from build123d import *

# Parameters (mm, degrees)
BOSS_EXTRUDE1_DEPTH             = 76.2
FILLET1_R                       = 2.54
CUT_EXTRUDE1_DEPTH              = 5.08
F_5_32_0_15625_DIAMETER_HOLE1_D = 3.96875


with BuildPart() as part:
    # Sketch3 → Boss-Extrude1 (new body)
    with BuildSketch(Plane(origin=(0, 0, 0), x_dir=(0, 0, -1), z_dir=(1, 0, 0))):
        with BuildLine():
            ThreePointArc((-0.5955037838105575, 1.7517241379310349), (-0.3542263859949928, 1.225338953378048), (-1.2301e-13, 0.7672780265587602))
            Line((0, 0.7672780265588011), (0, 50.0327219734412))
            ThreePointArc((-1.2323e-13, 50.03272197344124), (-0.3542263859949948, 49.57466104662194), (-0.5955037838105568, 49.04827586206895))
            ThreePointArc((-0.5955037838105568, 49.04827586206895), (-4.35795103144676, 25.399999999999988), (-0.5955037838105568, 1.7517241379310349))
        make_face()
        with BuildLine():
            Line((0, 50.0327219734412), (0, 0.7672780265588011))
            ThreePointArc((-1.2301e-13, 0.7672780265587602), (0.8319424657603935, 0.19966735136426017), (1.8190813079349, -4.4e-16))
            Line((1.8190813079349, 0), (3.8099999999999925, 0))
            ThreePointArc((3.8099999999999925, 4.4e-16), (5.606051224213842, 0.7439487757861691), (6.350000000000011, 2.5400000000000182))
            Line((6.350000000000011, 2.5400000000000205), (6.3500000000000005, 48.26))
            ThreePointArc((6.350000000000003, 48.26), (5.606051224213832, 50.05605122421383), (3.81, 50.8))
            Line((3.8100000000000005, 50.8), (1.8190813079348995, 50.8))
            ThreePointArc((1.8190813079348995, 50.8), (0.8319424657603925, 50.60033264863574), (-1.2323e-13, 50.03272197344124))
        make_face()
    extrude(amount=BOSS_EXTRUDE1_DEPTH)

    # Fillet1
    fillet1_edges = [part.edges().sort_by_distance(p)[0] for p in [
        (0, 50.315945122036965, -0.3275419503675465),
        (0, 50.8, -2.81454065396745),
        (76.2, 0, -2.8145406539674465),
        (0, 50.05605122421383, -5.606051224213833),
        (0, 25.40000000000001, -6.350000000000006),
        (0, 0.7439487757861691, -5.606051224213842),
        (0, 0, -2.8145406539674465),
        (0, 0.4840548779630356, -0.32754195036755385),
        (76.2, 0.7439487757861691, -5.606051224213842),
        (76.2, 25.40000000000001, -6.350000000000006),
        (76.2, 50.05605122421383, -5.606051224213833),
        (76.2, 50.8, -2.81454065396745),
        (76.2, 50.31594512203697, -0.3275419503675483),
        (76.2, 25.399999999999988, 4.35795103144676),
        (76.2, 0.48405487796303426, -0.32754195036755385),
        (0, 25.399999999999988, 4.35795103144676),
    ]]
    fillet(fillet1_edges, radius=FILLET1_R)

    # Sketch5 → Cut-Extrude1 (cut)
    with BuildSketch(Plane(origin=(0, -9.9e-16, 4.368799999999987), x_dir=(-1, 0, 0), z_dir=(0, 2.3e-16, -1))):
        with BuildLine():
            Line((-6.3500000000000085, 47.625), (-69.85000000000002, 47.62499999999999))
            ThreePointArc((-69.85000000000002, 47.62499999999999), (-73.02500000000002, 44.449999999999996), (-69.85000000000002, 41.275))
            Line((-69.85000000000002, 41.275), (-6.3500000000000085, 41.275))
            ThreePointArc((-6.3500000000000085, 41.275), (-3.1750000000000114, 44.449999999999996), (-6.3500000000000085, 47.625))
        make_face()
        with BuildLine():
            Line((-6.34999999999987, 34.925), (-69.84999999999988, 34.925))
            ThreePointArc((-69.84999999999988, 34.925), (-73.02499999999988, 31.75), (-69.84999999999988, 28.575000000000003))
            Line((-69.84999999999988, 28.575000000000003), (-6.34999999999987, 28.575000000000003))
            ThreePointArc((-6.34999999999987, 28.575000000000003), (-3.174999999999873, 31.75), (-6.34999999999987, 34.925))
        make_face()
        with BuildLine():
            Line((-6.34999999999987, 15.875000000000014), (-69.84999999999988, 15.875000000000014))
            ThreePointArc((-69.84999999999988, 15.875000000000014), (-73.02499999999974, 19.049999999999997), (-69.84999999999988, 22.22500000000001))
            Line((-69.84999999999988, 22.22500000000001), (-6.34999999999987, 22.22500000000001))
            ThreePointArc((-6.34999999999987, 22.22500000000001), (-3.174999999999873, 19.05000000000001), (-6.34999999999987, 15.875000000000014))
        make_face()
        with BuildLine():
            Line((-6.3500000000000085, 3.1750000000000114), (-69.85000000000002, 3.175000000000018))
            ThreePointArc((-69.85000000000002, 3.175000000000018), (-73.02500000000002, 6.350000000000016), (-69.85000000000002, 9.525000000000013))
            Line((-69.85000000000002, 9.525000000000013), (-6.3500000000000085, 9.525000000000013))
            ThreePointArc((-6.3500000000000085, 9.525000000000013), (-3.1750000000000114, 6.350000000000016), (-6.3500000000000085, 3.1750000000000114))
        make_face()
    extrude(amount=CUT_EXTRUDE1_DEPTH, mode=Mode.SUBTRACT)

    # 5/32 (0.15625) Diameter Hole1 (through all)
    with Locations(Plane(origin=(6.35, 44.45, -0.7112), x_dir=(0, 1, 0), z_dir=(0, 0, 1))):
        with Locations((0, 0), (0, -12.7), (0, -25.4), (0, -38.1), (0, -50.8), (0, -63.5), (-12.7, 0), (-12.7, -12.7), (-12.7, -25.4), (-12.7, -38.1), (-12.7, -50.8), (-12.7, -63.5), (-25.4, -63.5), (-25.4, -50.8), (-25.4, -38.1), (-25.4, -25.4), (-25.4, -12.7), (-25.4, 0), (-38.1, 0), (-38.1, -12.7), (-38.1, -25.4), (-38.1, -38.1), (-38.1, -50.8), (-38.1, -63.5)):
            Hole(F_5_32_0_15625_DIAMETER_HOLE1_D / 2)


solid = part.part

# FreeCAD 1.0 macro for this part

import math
import FreeCAD as App
import Part
import Sketcher

V = App.Vector
Q = App.Units.Quantity


def edges_at(feature, points):
    """Names of the edges that pass closest to the given points."""
    edges = feature.Shape.Edges
    near = lambda p: min(range(len(edges)), key=lambda i: edges[i].distToShape(Part.Vertex(*p))[0])
    return sorted({f"Edge{near(p) + 1}" for p in points})

doc = App.newDocument("Part")
body = doc.addObject("PartDesign::Body", "Body")

# Sketch on YZ plane
sketch1 = doc.addObject("Sketcher::SketchObject", "Sketch")
body.addObject(sketch1)
sketch1.AttachmentSupport = (doc.YZ_Plane, [""])
sketch1.MapMode = "FlatFace"
sketch1.addGeometry(Part.ArcOfCircle(Part.Circle(V(2.5, -1.8, 0), V(0, 0, 1), 2.5), math.radians(108), math.radians(180)), False)
sketch1.addGeometry(Part.LineSegment(V(0, -1.8, 0), V(0, -3.8, 0)), False)
sketch1.addGeometry(Part.ArcOfCircle(Part.Circle(V(2.5, -3.8, 0), V(0, 0, 1), 2.5), math.radians(180), math.radians(270)), False)
sketch1.addGeometry(Part.LineSegment(V(2.5, -6.3, 0), V(48.3, -6.3, 0)), False)
sketch1.addGeometry(Part.ArcOfCircle(Part.Circle(V(48.3, -3.8, 0), V(0, 0, 1), 2.5), math.radians(-90), math.radians(0)), False)
sketch1.addGeometry(Part.LineSegment(V(50.8, -3.8, 0), V(50.8, -1.8, 0)), False)
sketch1.addGeometry(Part.ArcOfCircle(Part.Circle(V(48.3, -1.8, 0), V(0, 0, 1), 2.5), math.radians(0), math.radians(72)), False)
sketch1.addGeometry(Part.ArcOfCircle(Part.Circle(V(25.4, -71.8, 0), V(0, 0, 1), 76.2), math.radians(72), math.radians(108)), False)
sketch1.addConstraint(Sketcher.Constraint("Tangent", 0, 2, 1, 1))
sketch1.addConstraint(Sketcher.Constraint("Tangent", 1, 2, 2, 1))
sketch1.addConstraint(Sketcher.Constraint("Tangent", 2, 2, 3, 1))
sketch1.addConstraint(Sketcher.Constraint("Tangent", 3, 2, 4, 1))
sketch1.addConstraint(Sketcher.Constraint("Tangent", 4, 2, 5, 1))
sketch1.addConstraint(Sketcher.Constraint("Tangent", 5, 2, 6, 1))
sketch1.addConstraint(Sketcher.Constraint("Tangent", 6, 2, 7, 1))
sketch1.addConstraint(Sketcher.Constraint("Tangent", 7, 2, 0, 1))
sketch1.addConstraint(Sketcher.Constraint("Vertical", 1))
sketch1.addConstraint(Sketcher.Constraint("Horizontal", 3))
sketch1.addConstraint(Sketcher.Constraint("Vertical", 5))
sketch1.addConstraint(Sketcher.Constraint("Equal", 0, 2))
sketch1.addConstraint(Sketcher.Constraint("Equal", 2, 4))
sketch1.addConstraint(Sketcher.Constraint("Equal", 4, 6))
sketch1.addConstraint(Sketcher.Constraint("PointOnObject", 0, 2, -2))
sketch1.addConstraint(Sketcher.Constraint("Horizontal", 0, 3, 6, 3))
sketch1.addConstraint(Sketcher.Constraint("Radius", 7, Q("3 in")))
sketch1.addConstraint(Sketcher.Constraint("Radius", 0, Q("0.1 in")))
sketch1.addConstraint(Sketcher.Constraint("DistanceX", 3, 1, 3, 2, Q("1.8 in")))
sketch1.addConstraint(Sketcher.Constraint("DistanceY", 2, 3, -1, 1, Q("0.15 in")))
sketch1.addConstraint(Sketcher.Constraint("DistanceY", 1, 2, 1, 1, 1.990919))
pad1 = doc.addObject("PartDesign::Pad", "Pad")
body.addObject(pad1)
pad1.Profile = sketch1
pad1.Length = Q("3 in")
doc.recompute()

fillet = doc.addObject("PartDesign::Fillet", "Fillet")
body.addObject(fillet)
fillet.Base = (pad1, edges_at(pad1, [
    (0, 50.316, -0.328),
    (0, 50.8, -2.815),
    (76.2, 0, -2.815),
    (0, 50.056, -5.606),
    (0, 25.4, -6.35),
    (0, 0.744, -5.606),
    (0, 0, -2.815),
    (0, 0.484, -0.328),
    (76.2, 0.744, -5.606),
    (76.2, 25.4, -6.35),
    (76.2, 50.056, -5.606),
    (76.2, 50.8, -2.815),
    (76.2, 50.316, -0.328),
    (76.2, 25.4, 4.358),
    (76.2, 0.484, -0.328),
    (0, 25.4, 4.358),
]))
fillet.Radius = Q("0.1 in")

# Sketch on XY plane
sketch2 = doc.addObject("Sketcher::SketchObject", "Sketch001")
body.addObject(sketch2)
sketch2.AttachmentSupport = (doc.XY_Plane, [""])
sketch2.MapMode = "FlatFace"
sketch2.AttachmentOffset = App.Placement(V(0, 0, 0.172 * 25.4), App.Rotation())
sketch2.addGeometry(Part.LineSegment(V(6.3, 47.6, 0), V(69.8, 47.6, 0)), False)
sketch2.addGeometry(Part.ArcOfCircle(Part.Circle(V(69.8, 44.5, 0), V(0, 0, 1), 3.2), math.radians(-90), math.radians(90)), False)
sketch2.addGeometry(Part.LineSegment(V(69.8, 41.3, 0), V(6.3, 41.3, 0)), False)
sketch2.addGeometry(Part.ArcOfCircle(Part.Circle(V(6.3, 44.5, 0), V(0, 0, 1), 3.2), math.radians(90), math.radians(270)), False)
sketch2.addGeometry(Part.LineSegment(V(6.3, 34.9, 0), V(69.8, 34.9, 0)), False)
sketch2.addGeometry(Part.ArcOfCircle(Part.Circle(V(69.8, 31.8, 0), V(0, 0, 1), 3.2), math.radians(-90), math.radians(90)), False)
sketch2.addGeometry(Part.LineSegment(V(69.8, 28.6, 0), V(6.3, 28.6, 0)), False)
sketch2.addGeometry(Part.ArcOfCircle(Part.Circle(V(6.3, 31.8, 0), V(0, 0, 1), 3.2), math.radians(90), math.radians(270)), False)
sketch2.addGeometry(Part.LineSegment(V(69.8, 15.9, 0), V(6.3, 15.9, 0)), False)
sketch2.addGeometry(Part.ArcOfCircle(Part.Circle(V(6.3, 19.1, 0), V(0, 0, 1), 3.2), math.radians(90), math.radians(270)), False)
sketch2.addGeometry(Part.LineSegment(V(6.3, 22.2, 0), V(69.8, 22.2, 0)), False)
sketch2.addGeometry(Part.ArcOfCircle(Part.Circle(V(69.8, 19.1, 0), V(0, 0, 1), 3.2), math.radians(-90), math.radians(90)), False)
sketch2.addGeometry(Part.LineSegment(V(69.8, 3.2, 0), V(6.3, 3.2, 0)), False)
sketch2.addGeometry(Part.ArcOfCircle(Part.Circle(V(6.3, 6.3, 0), V(0, 0, 1), 3.2), math.radians(90), math.radians(270)), False)
sketch2.addGeometry(Part.LineSegment(V(6.3, 9.5, 0), V(69.8, 9.5, 0)), False)
sketch2.addGeometry(Part.ArcOfCircle(Part.Circle(V(69.8, 6.3, 0), V(0, 0, 1), 3.2), math.radians(-90), math.radians(90)), False)
sketch2.addConstraint(Sketcher.Constraint("Tangent", 0, 2, 1, 2))
sketch2.addConstraint(Sketcher.Constraint("Tangent", 1, 1, 2, 1))
sketch2.addConstraint(Sketcher.Constraint("Tangent", 2, 2, 3, 2))
sketch2.addConstraint(Sketcher.Constraint("Tangent", 3, 1, 0, 1))
sketch2.addConstraint(Sketcher.Constraint("Tangent", 4, 2, 5, 2))
sketch2.addConstraint(Sketcher.Constraint("Tangent", 5, 1, 6, 1))
sketch2.addConstraint(Sketcher.Constraint("Tangent", 6, 2, 7, 2))
sketch2.addConstraint(Sketcher.Constraint("Tangent", 7, 1, 4, 1))
sketch2.addConstraint(Sketcher.Constraint("Tangent", 8, 2, 9, 2))
sketch2.addConstraint(Sketcher.Constraint("Tangent", 9, 1, 10, 1))
sketch2.addConstraint(Sketcher.Constraint("Tangent", 10, 2, 11, 2))
sketch2.addConstraint(Sketcher.Constraint("Tangent", 11, 1, 8, 1))
sketch2.addConstraint(Sketcher.Constraint("Tangent", 12, 2, 13, 2))
sketch2.addConstraint(Sketcher.Constraint("Tangent", 13, 1, 14, 1))
sketch2.addConstraint(Sketcher.Constraint("Tangent", 14, 2, 15, 2))
sketch2.addConstraint(Sketcher.Constraint("Tangent", 15, 1, 12, 1))
sketch2.addConstraint(Sketcher.Constraint("Horizontal", 0))
sketch2.addConstraint(Sketcher.Constraint("Horizontal", 2))
sketch2.addConstraint(Sketcher.Constraint("Horizontal", 4))
sketch2.addConstraint(Sketcher.Constraint("Horizontal", 6))
sketch2.addConstraint(Sketcher.Constraint("Horizontal", 8))
sketch2.addConstraint(Sketcher.Constraint("Horizontal", 10))
sketch2.addConstraint(Sketcher.Constraint("Horizontal", 12))
sketch2.addConstraint(Sketcher.Constraint("Horizontal", 14))
sketch2.addConstraint(Sketcher.Constraint("Equal", 3, 5))
sketch2.addConstraint(Sketcher.Constraint("Equal", 7, 9))
sketch2.addConstraint(Sketcher.Constraint("Equal", 11, 13))
sketch2.addConstraint(Sketcher.Constraint("Vertical", 1, 3, 5, 3))
sketch2.addConstraint(Sketcher.Constraint("Vertical", 3, 3, 7, 3))
sketch2.addConstraint(Sketcher.Constraint("Vertical", 7, 3, 9, 3))
sketch2.addConstraint(Sketcher.Constraint("Vertical", 5, 3, 11, 3))
sketch2.addConstraint(Sketcher.Constraint("Vertical", 9, 3, 13, 3))
sketch2.addConstraint(Sketcher.Constraint("Vertical", 11, 3, 15, 3))
sketch2.addConstraint(Sketcher.Constraint("DistanceX", 0, 1, 0, 2, Q("2.5 in")))
sketch2.addConstraint(Sketcher.Constraint("Radius", 1, Q("0.125 in")))
sketch2.addConstraint(Sketcher.Constraint("DistanceY", 9, 3, 3, 3, Q("1 in")))
sketch2.addConstraint(Sketcher.Constraint("DistanceY", 13, 3, 7, 3, Q("1 in")))
sketch2.addConstraint(Sketcher.Constraint("DistanceY", 5, 3, 1, 3, Q("0.5 in")))
sketch2.addConstraint(Sketcher.Constraint("DistanceX", -1, 1, 1, 3, Q("2.75 in")))
sketch2.addConstraint(Sketcher.Constraint("DistanceY", -1, 1, 1, 3, Q("1.75 in")))
pocket1 = doc.addObject("PartDesign::Pocket", "Pocket")
body.addObject(pocket1)
pocket1.Profile = sketch2
pocket1.Length = Q("0.2 in")

# Sketch on XY plane
sketch3 = doc.addObject("Sketcher::SketchObject", "Sketch002")
body.addObject(sketch3)
sketch3.AttachmentSupport = (doc.XY_Plane, [""])
sketch3.MapMode = "FlatFace"
sketch3.AttachmentOffset = App.Placement(V(0, 0, -0.028 * 25.4), App.Rotation())
sketch3.addGeometry(Part.Circle(V(6.3, 44.5, 0), V(0, 0, 1), 2), False)
sketch3.addGeometry(Part.Circle(V(19.1, 44.5, 0), V(0, 0, 1), 2), False)
sketch3.addGeometry(Part.Circle(V(31.8, 44.5, 0), V(0, 0, 1), 2), False)
sketch3.addGeometry(Part.Circle(V(44.5, 44.5, 0), V(0, 0, 1), 2), False)
sketch3.addGeometry(Part.Circle(V(57.1, 44.5, 0), V(0, 0, 1), 2), False)
sketch3.addGeometry(Part.Circle(V(69.8, 44.5, 0), V(0, 0, 1), 2), False)
sketch3.addGeometry(Part.Circle(V(6.3, 31.8, 0), V(0, 0, 1), 2), False)
sketch3.addGeometry(Part.Circle(V(19.1, 31.8, 0), V(0, 0, 1), 2), False)
sketch3.addGeometry(Part.Circle(V(31.8, 31.8, 0), V(0, 0, 1), 2), False)
sketch3.addGeometry(Part.Circle(V(44.5, 31.8, 0), V(0, 0, 1), 2), False)
sketch3.addGeometry(Part.Circle(V(57.1, 31.8, 0), V(0, 0, 1), 2), False)
sketch3.addGeometry(Part.Circle(V(69.8, 31.8, 0), V(0, 0, 1), 2), False)
sketch3.addGeometry(Part.Circle(V(69.8, 19.1, 0), V(0, 0, 1), 2), False)
sketch3.addGeometry(Part.Circle(V(57.1, 19.1, 0), V(0, 0, 1), 2), False)
sketch3.addGeometry(Part.Circle(V(44.5, 19.1, 0), V(0, 0, 1), 2), False)
sketch3.addGeometry(Part.Circle(V(31.8, 19.1, 0), V(0, 0, 1), 2), False)
sketch3.addGeometry(Part.Circle(V(19.1, 19.1, 0), V(0, 0, 1), 2), False)
sketch3.addGeometry(Part.Circle(V(6.3, 19.1, 0), V(0, 0, 1), 2), False)
sketch3.addGeometry(Part.Circle(V(6.3, 6.3, 0), V(0, 0, 1), 2), False)
sketch3.addGeometry(Part.Circle(V(19.1, 6.3, 0), V(0, 0, 1), 2), False)
sketch3.addGeometry(Part.Circle(V(31.8, 6.3, 0), V(0, 0, 1), 2), False)
sketch3.addGeometry(Part.Circle(V(44.5, 6.3, 0), V(0, 0, 1), 2), False)
sketch3.addGeometry(Part.Circle(V(57.1, 6.3, 0), V(0, 0, 1), 2), False)
sketch3.addGeometry(Part.Circle(V(69.8, 6.3, 0), V(0, 0, 1), 2), False)
sketch3.addConstraint(Sketcher.Constraint("Equal", 0, 1))
sketch3.addConstraint(Sketcher.Constraint("Equal", 1, 2))
sketch3.addConstraint(Sketcher.Constraint("Equal", 2, 3))
sketch3.addConstraint(Sketcher.Constraint("Equal", 3, 4))
sketch3.addConstraint(Sketcher.Constraint("Equal", 4, 5))
sketch3.addConstraint(Sketcher.Constraint("Equal", 5, 6))
sketch3.addConstraint(Sketcher.Constraint("Equal", 6, 7))
sketch3.addConstraint(Sketcher.Constraint("Equal", 7, 8))
sketch3.addConstraint(Sketcher.Constraint("Equal", 8, 9))
sketch3.addConstraint(Sketcher.Constraint("Equal", 9, 10))
sketch3.addConstraint(Sketcher.Constraint("Equal", 10, 11))
sketch3.addConstraint(Sketcher.Constraint("Equal", 11, 12))
sketch3.addConstraint(Sketcher.Constraint("Equal", 12, 13))
sketch3.addConstraint(Sketcher.Constraint("Equal", 13, 14))
sketch3.addConstraint(Sketcher.Constraint("Equal", 14, 15))
sketch3.addConstraint(Sketcher.Constraint("Equal", 15, 16))
sketch3.addConstraint(Sketcher.Constraint("Equal", 16, 17))
sketch3.addConstraint(Sketcher.Constraint("Equal", 17, 18))
sketch3.addConstraint(Sketcher.Constraint("Equal", 18, 19))
sketch3.addConstraint(Sketcher.Constraint("Equal", 19, 20))
sketch3.addConstraint(Sketcher.Constraint("Equal", 20, 21))
sketch3.addConstraint(Sketcher.Constraint("Equal", 21, 22))
sketch3.addConstraint(Sketcher.Constraint("Equal", 22, 23))
sketch3.addConstraint(Sketcher.Constraint("Horizontal", 0, 3, 1, 3))
sketch3.addConstraint(Sketcher.Constraint("Horizontal", 1, 3, 2, 3))
sketch3.addConstraint(Sketcher.Constraint("Horizontal", 2, 3, 3, 3))
sketch3.addConstraint(Sketcher.Constraint("Horizontal", 3, 3, 4, 3))
sketch3.addConstraint(Sketcher.Constraint("Horizontal", 4, 3, 5, 3))
sketch3.addConstraint(Sketcher.Constraint("Horizontal", 6, 3, 7, 3))
sketch3.addConstraint(Sketcher.Constraint("Horizontal", 7, 3, 8, 3))
sketch3.addConstraint(Sketcher.Constraint("Horizontal", 8, 3, 9, 3))
sketch3.addConstraint(Sketcher.Constraint("Horizontal", 9, 3, 10, 3))
sketch3.addConstraint(Sketcher.Constraint("Horizontal", 10, 3, 11, 3))
sketch3.addConstraint(Sketcher.Constraint("Horizontal", 12, 3, 13, 3))
sketch3.addConstraint(Sketcher.Constraint("Horizontal", 13, 3, 14, 3))
sketch3.addConstraint(Sketcher.Constraint("Horizontal", 14, 3, 15, 3))
sketch3.addConstraint(Sketcher.Constraint("Horizontal", 15, 3, 16, 3))
sketch3.addConstraint(Sketcher.Constraint("Horizontal", 16, 3, 17, 3))
sketch3.addConstraint(Sketcher.Constraint("Horizontal", 18, 3, 19, 3))
sketch3.addConstraint(Sketcher.Constraint("Horizontal", 19, 3, 20, 3))
sketch3.addConstraint(Sketcher.Constraint("Horizontal", 20, 3, 21, 3))
sketch3.addConstraint(Sketcher.Constraint("Horizontal", 21, 3, 22, 3))
sketch3.addConstraint(Sketcher.Constraint("Horizontal", 22, 3, 23, 3))
sketch3.addConstraint(Sketcher.Constraint("Vertical", 0, 3, 6, 3))
sketch3.addConstraint(Sketcher.Constraint("Vertical", 1, 3, 7, 3))
sketch3.addConstraint(Sketcher.Constraint("Vertical", 2, 3, 8, 3))
sketch3.addConstraint(Sketcher.Constraint("Vertical", 3, 3, 9, 3))
sketch3.addConstraint(Sketcher.Constraint("Vertical", 4, 3, 10, 3))
sketch3.addConstraint(Sketcher.Constraint("Vertical", 5, 3, 11, 3))
sketch3.addConstraint(Sketcher.Constraint("Vertical", 11, 3, 12, 3))
sketch3.addConstraint(Sketcher.Constraint("Vertical", 10, 3, 13, 3))
sketch3.addConstraint(Sketcher.Constraint("Vertical", 9, 3, 14, 3))
sketch3.addConstraint(Sketcher.Constraint("Vertical", 8, 3, 15, 3))
sketch3.addConstraint(Sketcher.Constraint("Vertical", 7, 3, 16, 3))
sketch3.addConstraint(Sketcher.Constraint("Vertical", 6, 3, 17, 3))
sketch3.addConstraint(Sketcher.Constraint("Vertical", 17, 3, 18, 3))
sketch3.addConstraint(Sketcher.Constraint("Vertical", 16, 3, 19, 3))
sketch3.addConstraint(Sketcher.Constraint("Vertical", 15, 3, 20, 3))
sketch3.addConstraint(Sketcher.Constraint("Vertical", 14, 3, 21, 3))
sketch3.addConstraint(Sketcher.Constraint("Vertical", 13, 3, 22, 3))
sketch3.addConstraint(Sketcher.Constraint("Vertical", 12, 3, 23, 3))
sketch3.addConstraint(Sketcher.Constraint("Diameter", 0, Q("0.15625 in")))
sketch3.addConstraint(Sketcher.Constraint("DistanceX", 0, 3, 2, 3, Q("1 in")))
sketch3.addConstraint(Sketcher.Constraint("DistanceX", 1, 3, 3, 3, Q("1 in")))
sketch3.addConstraint(Sketcher.Constraint("DistanceX", 2, 3, 4, 3, Q("1 in")))
sketch3.addConstraint(Sketcher.Constraint("DistanceX", 3, 3, 5, 3, Q("1 in")))
sketch3.addConstraint(Sketcher.Constraint("DistanceY", 12, 3, 5, 3, Q("1 in")))
sketch3.addConstraint(Sketcher.Constraint("DistanceY", 18, 3, 6, 3, Q("1 in")))
sketch3.addConstraint(Sketcher.Constraint("DistanceX", 0, 3, 1, 3, Q("0.5 in")))
sketch3.addConstraint(Sketcher.Constraint("DistanceY", 6, 3, 0, 3, Q("0.5 in")))
sketch3.addConstraint(Sketcher.Constraint("DistanceX", -1, 1, 0, 3, Q("0.25 in")))
sketch3.addConstraint(Sketcher.Constraint("DistanceY", -1, 1, 0, 3, Q("1.75 in")))
doc.recompute()
hole = doc.addObject("PartDesign::Hole", "Hole")
body.addObject(hole)
hole.Profile = sketch3
hole.ThreadType = "None"
hole.Diameter = Q("0.15625 in")
hole.DepthType = "ThroughAll"

doc.recompute()
